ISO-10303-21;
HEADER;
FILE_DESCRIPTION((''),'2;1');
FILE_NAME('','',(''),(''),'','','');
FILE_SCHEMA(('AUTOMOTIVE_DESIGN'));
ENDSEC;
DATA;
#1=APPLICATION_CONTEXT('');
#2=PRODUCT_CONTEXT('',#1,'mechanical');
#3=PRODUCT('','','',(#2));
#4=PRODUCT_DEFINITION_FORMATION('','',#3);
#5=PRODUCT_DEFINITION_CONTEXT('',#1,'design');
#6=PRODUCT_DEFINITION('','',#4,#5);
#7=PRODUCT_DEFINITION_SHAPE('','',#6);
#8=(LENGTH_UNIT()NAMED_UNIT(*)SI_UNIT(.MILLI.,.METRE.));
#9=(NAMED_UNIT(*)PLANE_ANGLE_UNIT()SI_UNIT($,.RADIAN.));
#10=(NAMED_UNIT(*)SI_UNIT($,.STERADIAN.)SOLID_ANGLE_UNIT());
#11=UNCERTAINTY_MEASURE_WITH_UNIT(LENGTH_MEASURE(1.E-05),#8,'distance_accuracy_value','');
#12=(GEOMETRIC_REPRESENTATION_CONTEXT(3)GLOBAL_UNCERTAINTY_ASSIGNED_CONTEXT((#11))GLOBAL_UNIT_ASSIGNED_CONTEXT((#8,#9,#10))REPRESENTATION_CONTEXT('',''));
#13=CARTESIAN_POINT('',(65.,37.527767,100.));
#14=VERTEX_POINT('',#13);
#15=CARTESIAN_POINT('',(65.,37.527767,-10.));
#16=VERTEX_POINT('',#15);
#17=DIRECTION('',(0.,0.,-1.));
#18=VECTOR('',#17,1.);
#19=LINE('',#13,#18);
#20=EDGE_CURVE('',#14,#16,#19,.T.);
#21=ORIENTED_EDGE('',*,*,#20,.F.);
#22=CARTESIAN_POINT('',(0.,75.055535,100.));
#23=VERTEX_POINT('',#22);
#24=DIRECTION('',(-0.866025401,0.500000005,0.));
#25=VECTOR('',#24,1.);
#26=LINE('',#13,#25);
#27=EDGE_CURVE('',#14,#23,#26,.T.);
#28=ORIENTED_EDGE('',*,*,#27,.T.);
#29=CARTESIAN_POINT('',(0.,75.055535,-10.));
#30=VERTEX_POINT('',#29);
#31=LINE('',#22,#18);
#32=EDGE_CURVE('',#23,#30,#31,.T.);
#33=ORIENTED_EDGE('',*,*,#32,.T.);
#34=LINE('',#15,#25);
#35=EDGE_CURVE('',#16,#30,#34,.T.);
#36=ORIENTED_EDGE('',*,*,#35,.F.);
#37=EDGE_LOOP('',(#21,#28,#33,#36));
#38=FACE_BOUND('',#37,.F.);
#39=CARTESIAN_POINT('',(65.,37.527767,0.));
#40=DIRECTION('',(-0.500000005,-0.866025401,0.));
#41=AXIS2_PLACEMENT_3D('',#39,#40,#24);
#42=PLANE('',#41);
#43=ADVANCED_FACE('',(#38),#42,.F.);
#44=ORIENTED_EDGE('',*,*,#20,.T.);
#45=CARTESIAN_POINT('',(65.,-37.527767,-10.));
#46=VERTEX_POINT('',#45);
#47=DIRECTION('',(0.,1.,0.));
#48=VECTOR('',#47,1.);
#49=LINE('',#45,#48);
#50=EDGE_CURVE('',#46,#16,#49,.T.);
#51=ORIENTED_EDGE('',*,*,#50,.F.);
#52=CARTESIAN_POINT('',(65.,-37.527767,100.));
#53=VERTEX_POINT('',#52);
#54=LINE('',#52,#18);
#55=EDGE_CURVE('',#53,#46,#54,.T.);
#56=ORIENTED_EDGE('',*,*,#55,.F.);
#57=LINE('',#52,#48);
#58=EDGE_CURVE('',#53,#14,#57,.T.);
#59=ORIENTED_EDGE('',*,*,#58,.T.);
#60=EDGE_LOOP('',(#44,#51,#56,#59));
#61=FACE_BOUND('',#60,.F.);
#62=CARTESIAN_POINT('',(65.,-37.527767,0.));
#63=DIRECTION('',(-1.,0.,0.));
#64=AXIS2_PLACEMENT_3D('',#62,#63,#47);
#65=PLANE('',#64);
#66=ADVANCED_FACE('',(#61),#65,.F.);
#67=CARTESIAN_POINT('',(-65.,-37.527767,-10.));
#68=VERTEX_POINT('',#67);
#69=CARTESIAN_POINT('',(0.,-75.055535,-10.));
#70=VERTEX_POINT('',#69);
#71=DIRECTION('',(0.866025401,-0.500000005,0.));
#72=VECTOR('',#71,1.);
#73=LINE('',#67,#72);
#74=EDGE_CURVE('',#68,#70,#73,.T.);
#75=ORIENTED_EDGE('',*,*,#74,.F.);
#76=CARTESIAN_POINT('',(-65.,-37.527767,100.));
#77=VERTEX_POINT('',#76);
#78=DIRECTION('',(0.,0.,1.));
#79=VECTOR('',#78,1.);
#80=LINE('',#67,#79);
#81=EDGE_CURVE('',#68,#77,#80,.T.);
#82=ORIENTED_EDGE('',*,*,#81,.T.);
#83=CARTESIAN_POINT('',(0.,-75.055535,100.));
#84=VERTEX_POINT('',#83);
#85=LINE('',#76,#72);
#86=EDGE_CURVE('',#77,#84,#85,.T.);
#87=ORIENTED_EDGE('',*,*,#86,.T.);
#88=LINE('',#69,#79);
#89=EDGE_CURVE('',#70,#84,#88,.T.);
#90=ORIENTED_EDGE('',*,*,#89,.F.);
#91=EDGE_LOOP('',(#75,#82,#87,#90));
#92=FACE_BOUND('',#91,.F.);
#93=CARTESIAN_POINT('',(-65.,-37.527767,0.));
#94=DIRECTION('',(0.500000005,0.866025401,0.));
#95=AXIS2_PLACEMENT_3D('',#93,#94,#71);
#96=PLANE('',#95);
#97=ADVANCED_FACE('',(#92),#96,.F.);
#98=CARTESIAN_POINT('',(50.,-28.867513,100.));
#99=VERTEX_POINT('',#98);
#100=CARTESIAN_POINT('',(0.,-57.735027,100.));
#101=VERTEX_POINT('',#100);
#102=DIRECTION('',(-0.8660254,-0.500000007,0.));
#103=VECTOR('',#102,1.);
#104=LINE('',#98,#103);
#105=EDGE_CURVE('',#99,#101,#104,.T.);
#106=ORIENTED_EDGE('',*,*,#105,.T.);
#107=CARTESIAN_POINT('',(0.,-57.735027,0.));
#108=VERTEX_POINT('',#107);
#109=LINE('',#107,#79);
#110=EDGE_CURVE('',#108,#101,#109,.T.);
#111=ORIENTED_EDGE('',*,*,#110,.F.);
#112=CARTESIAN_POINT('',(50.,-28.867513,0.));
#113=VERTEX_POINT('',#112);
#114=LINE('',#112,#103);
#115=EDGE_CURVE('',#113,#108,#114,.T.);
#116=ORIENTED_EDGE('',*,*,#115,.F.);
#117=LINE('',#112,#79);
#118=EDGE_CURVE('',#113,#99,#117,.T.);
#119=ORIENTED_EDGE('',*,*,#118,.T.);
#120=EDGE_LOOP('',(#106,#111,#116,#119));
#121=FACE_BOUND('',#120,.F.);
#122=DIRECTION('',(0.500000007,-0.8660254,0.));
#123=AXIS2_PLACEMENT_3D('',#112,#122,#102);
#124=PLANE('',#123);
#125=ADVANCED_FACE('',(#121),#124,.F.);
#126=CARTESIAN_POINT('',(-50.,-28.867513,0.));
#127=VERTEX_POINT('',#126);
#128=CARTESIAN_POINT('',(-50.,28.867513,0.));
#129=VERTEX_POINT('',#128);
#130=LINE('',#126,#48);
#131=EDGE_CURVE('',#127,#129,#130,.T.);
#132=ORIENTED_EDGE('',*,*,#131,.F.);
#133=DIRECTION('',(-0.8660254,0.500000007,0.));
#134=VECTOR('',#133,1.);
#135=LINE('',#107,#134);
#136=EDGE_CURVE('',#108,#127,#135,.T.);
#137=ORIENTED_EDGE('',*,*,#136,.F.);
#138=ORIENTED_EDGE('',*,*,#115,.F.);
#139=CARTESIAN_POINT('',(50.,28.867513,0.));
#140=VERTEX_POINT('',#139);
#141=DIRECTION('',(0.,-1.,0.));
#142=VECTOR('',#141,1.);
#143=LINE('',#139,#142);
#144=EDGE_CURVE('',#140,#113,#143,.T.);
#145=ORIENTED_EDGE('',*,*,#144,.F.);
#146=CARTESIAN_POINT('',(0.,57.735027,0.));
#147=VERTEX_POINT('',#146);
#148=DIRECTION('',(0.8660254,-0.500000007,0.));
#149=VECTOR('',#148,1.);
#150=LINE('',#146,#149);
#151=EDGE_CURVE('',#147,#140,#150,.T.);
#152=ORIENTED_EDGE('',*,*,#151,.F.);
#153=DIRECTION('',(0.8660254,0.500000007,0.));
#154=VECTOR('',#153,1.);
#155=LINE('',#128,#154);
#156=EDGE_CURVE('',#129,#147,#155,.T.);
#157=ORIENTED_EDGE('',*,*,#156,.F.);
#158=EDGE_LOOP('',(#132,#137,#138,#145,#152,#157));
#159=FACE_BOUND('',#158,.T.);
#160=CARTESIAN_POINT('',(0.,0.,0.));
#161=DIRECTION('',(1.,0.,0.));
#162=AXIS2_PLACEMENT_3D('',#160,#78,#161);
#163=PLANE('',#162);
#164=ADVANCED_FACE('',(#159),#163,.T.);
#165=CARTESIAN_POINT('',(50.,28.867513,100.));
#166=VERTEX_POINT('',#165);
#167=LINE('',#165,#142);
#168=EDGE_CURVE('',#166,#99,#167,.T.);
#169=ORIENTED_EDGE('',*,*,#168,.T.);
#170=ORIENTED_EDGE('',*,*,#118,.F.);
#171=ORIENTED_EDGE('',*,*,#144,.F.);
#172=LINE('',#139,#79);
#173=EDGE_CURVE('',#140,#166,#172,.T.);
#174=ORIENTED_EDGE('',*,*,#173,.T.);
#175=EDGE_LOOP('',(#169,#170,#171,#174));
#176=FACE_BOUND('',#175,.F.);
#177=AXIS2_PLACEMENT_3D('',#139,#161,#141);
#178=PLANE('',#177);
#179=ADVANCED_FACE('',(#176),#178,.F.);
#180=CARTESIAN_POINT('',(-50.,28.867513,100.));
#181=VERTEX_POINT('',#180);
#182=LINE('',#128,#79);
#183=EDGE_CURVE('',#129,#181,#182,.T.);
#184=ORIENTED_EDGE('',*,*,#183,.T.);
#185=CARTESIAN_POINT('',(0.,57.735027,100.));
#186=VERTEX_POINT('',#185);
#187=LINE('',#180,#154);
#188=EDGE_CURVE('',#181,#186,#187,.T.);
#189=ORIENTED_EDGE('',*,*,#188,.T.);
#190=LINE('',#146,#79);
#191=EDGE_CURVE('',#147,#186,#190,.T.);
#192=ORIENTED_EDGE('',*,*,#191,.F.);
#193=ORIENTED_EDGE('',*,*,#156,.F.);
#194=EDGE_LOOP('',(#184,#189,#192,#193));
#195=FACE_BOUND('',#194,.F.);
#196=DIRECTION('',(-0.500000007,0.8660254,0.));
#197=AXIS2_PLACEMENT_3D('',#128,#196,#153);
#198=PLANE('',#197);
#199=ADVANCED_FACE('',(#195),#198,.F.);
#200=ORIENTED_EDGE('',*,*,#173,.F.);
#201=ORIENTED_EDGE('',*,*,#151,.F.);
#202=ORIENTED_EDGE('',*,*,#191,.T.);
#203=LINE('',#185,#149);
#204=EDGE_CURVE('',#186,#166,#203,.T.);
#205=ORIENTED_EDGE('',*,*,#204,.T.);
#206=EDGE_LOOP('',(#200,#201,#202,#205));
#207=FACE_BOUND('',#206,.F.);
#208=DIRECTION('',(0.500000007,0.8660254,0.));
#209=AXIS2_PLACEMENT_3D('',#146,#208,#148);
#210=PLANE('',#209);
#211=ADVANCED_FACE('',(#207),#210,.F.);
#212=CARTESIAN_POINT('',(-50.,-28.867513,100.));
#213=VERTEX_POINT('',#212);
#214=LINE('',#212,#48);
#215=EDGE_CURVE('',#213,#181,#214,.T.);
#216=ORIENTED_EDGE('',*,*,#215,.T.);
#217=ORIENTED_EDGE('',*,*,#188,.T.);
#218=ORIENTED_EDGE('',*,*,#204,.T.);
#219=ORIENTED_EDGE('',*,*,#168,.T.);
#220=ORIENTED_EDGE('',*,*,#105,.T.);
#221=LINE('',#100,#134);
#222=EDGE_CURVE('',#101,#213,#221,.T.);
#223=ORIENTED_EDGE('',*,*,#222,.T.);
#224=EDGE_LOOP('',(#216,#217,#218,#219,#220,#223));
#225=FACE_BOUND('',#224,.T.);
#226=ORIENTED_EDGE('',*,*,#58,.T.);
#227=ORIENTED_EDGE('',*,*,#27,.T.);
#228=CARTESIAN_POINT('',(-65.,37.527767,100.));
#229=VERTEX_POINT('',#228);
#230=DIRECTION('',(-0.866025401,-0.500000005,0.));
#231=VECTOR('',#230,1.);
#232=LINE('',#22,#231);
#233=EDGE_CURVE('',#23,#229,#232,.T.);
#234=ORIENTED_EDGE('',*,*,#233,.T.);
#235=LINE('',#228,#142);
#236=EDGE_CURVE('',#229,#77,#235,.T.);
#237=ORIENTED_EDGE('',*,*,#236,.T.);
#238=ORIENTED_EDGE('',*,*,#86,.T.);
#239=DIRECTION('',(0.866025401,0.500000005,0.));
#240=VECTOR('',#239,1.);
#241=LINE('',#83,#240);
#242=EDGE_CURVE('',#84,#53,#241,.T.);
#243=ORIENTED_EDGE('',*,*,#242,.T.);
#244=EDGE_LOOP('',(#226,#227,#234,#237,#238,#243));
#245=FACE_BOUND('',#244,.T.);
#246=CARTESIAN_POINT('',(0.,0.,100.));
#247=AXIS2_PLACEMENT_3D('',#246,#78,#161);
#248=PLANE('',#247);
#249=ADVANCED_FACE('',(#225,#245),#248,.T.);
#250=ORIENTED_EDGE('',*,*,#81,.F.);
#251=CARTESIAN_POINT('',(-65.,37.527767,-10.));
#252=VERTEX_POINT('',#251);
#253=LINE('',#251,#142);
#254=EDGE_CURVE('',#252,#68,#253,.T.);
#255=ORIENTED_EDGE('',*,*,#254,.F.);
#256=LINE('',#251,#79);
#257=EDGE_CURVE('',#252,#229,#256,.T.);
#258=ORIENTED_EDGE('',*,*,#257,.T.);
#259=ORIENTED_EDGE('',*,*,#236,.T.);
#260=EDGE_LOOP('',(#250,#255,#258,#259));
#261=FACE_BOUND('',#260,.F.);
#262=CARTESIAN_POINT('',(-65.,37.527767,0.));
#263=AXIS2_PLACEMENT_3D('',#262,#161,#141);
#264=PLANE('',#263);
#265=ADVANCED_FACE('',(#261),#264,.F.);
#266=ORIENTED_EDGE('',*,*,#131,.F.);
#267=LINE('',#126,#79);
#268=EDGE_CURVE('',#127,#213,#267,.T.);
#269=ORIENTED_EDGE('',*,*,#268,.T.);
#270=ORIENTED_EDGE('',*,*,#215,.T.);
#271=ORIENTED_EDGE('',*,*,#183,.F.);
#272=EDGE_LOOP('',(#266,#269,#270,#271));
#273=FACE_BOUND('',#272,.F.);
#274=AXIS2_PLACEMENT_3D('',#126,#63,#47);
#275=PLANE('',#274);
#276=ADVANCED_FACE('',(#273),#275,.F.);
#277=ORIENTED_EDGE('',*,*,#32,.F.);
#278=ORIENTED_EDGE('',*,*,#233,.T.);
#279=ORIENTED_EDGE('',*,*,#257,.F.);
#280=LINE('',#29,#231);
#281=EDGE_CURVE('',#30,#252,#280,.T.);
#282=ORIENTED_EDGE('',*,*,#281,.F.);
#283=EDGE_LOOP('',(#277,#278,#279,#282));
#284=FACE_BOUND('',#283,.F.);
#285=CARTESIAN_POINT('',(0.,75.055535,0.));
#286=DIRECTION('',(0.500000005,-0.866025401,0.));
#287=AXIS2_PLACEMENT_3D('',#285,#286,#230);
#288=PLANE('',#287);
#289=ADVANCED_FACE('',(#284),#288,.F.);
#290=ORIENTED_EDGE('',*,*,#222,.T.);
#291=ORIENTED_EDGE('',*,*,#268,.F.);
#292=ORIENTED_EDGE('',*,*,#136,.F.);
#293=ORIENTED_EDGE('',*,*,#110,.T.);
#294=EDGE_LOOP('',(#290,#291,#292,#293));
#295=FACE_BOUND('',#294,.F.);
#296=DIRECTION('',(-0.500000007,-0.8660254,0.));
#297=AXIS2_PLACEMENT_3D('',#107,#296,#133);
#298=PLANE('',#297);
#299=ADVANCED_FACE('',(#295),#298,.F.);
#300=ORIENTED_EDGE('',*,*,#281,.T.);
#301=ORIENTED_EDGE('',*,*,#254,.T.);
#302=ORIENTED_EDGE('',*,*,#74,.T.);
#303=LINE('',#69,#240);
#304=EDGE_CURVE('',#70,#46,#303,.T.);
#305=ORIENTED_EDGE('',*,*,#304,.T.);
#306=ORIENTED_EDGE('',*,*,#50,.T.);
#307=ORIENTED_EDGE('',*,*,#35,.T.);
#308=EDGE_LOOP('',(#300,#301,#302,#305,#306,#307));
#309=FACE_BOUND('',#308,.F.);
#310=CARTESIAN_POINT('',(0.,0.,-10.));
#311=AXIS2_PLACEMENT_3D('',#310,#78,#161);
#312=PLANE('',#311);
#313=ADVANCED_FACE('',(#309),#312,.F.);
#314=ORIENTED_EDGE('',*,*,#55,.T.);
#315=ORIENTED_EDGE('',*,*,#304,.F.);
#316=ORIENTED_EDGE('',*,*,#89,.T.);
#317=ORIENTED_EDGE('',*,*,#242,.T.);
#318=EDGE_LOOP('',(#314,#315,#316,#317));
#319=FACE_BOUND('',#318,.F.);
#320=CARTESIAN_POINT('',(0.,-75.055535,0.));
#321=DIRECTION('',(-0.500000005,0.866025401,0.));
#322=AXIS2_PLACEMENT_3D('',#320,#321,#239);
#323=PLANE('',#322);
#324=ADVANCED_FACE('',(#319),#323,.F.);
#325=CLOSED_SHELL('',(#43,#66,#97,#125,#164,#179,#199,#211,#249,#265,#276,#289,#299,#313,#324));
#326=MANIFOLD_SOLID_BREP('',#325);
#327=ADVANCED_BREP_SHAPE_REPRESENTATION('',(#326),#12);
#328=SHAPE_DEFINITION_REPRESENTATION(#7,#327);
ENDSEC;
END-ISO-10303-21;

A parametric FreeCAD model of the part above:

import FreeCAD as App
import Part
import Sketcher

V = App.Vector
Q = App.Units.Quantity

doc = App.newDocument("Part")
body = doc.addObject("PartDesign::Body", "Body")

# Sketch on XY plane
sketch1 = body.newObject("Sketcher::SketchObject", "Sketch")
sketch1.AttachmentSupport = (doc.getObject("XY_Plane"), [""])
sketch1.MapMode = "FlatFace"
sketch1.addGeometry(Part.LineSegment(V(0, 75.055535, 0), V(-65, 37.527767, 0)), False)
sketch1.addGeometry(Part.LineSegment(V(-65, 37.527767, 0), V(-65, -37.527767, 0)), False)
sketch1.addGeometry(Part.LineSegment(V(-65, -37.527767, 0), V(0, -75.055535, 0)), False)
sketch1.addGeometry(Part.LineSegment(V(0, -75.055535, 0), V(65, -37.527767, 0)), False)
sketch1.addGeometry(Part.LineSegment(V(65, -37.527767, 0), V(65, 37.527767, 0)), False)
sketch1.addGeometry(Part.LineSegment(V(65, 37.527767, 0), V(0, 75.055535, 0)), False)
sketch1.addConstraint(Sketcher.Constraint("Coincident", 0, 2, 1, 1))
sketch1.addConstraint(Sketcher.Constraint("Coincident", 1, 2, 2, 1))
sketch1.addConstraint(Sketcher.Constraint("Coincident", 2, 2, 3, 1))
sketch1.addConstraint(Sketcher.Constraint("Coincident", 3, 2, 4, 1))
sketch1.addConstraint(Sketcher.Constraint("Coincident", 4, 2, 5, 1))
sketch1.addConstraint(Sketcher.Constraint("Coincident", 5, 2, 0, 1))
sketch1.addConstraint(Sketcher.Constraint("Vertical", 1))
sketch1.addConstraint(Sketcher.Constraint("Vertical", 4))
sketch1.addConstraint(Sketcher.Constraint("Symmetric", 0, 2, 3, 2, -1, 1))
sketch1.addConstraint(Sketcher.Constraint("Symmetric", 2, 2, 5, 2, -1, 1))
sketch1.addConstraint(Sketcher.Constraint("PointOnObject", 2, 2, -2))
sketch1.addConstraint(Sketcher.Constraint("Parallel", 2, 5))
sketch1.addConstraint(Sketcher.Constraint("Horizontal", 1, 2, 3, 2))
sketch1.addConstraint(Sketcher.Constraint("Angle", 0, Q("-150 deg")))
sketch1.addConstraint(Sketcher.Constraint("DistanceX", 0, 2, -1, 1, 65.0))
sketch1.addConstraint(Sketcher.Constraint("DistanceY", 1, 2, 1, 1, 75.055534))
pad1 = body.newObject("PartDesign::Pad", "Pad")
pad1.Profile = sketch1
pad1.Length = 10
pad1.Reversed = True

# Sketch on XY plane
sketch2 = body.newObject("Sketcher::SketchObject", "Sketch001")
sketch2.AttachmentSupport = (doc.getObject("XY_Plane"), [""])
sketch2.MapMode = "FlatFace"
sketch2.addGeometry(Part.LineSegment(V(0, 75.055535, 0), V(-65, 37.527767, 0)), False)
sketch2.addGeometry(Part.LineSegment(V(-65, 37.527767, 0), V(-65, -37.527767, 0)), False)
sketch2.addGeometry(Part.LineSegment(V(-65, -37.527767, 0), V(0, -75.055535, 0)), False)
sketch2.addGeometry(Part.LineSegment(V(0, -75.055535, 0), V(65, -37.527767, 0)), False)
sketch2.addGeometry(Part.LineSegment(V(65, -37.527767, 0), V(65, 37.527767, 0)), False)
sketch2.addGeometry(Part.LineSegment(V(65, 37.527767, 0), V(0, 75.055535, 0)), False)
sketch2.addGeometry(Part.LineSegment(V(-50, 28.867513, 0), V(0, 57.735027, 0)), False)
sketch2.addGeometry(Part.LineSegment(V(0, 57.735027, 0), V(50, 28.867513, 0)), False)
sketch2.addGeometry(Part.LineSegment(V(50, 28.867513, 0), V(50, -28.867513, 0)), False)
sketch2.addGeometry(Part.LineSegment(V(50, -28.867513, 0), V(0, -57.735027, 0)), False)
sketch2.addGeometry(Part.LineSegment(V(0, -57.735027, 0), V(-50, -28.867513, 0)), False)
sketch2.addGeometry(Part.LineSegment(V(-50, -28.867513, 0), V(-50, 28.867513, 0)), False)
sketch2.addConstraint(Sketcher.Constraint("Coincident", 0, 2, 1, 1))
sketch2.addConstraint(Sketcher.Constraint("Coincident", 1, 2, 2, 1))
sketch2.addConstraint(Sketcher.Constraint("Coincident", 2, 2, 3, 1))
sketch2.addConstraint(Sketcher.Constraint("Coincident", 3, 2, 4, 1))
sketch2.addConstraint(Sketcher.Constraint("Coincident", 4, 2, 5, 1))
sketch2.addConstraint(Sketcher.Constraint("Coincident", 5, 2, 0, 1))
sketch2.addConstraint(Sketcher.Constraint("Coincident", 6, 2, 7, 1))
sketch2.addConstraint(Sketcher.Constraint("Coincident", 7, 2, 8, 1))
sketch2.addConstraint(Sketcher.Constraint("Coincident", 8, 2, 9, 1))
sketch2.addConstraint(Sketcher.Constraint("Coincident", 9, 2, 10, 1))
sketch2.addConstraint(Sketcher.Constraint("Coincident", 10, 2, 11, 1))
sketch2.addConstraint(Sketcher.Constraint("Coincident", 11, 2, 6, 1))
sketch2.addConstraint(Sketcher.Constraint("Vertical", 1))
sketch2.addConstraint(Sketcher.Constraint("Vertical", 4))
sketch2.addConstraint(Sketcher.Constraint("Vertical", 8))
sketch2.addConstraint(Sketcher.Constraint("Vertical", 11))
sketch2.addConstraint(Sketcher.Constraint("Symmetric", 0, 2, 3, 2, -1, 1))
sketch2.addConstraint(Sketcher.Constraint("Symmetric", 2, 2, 5, 2, -1, 1))
sketch2.addConstraint(Sketcher.Constraint("Symmetric", 6, 2, 9, 2, -1, 1))
sketch2.addConstraint(Sketcher.Constraint("Symmetric", 7, 2, 10, 2, -1, 1))
sketch2.addConstraint(Sketcher.Constraint("PointOnObject", 2, 2, -2))
sketch2.addConstraint(Sketcher.Constraint("PointOnObject", 6, 2, -2))
sketch2.addConstraint(Sketcher.Constraint("Parallel", 2, 5))
sketch2.addConstraint(Sketcher.Constraint("Parallel", 3, 6))
sketch2.addConstraint(Sketcher.Constraint("Parallel", 5, 7))
sketch2.addConstraint(Sketcher.Constraint("Parallel", 6, 9))
sketch2.addConstraint(Sketcher.Constraint("Horizontal", 1, 2, 3, 2))
sketch2.addConstraint(Sketcher.Constraint("Angle", 0, Q("-150 deg")))
sketch2.addConstraint(Sketcher.Constraint("DistanceX", 0, 2, -1, 1, 65.0))
sketch2.addConstraint(Sketcher.Constraint("DistanceX", -1, 1, 7, 2, 50.0))
sketch2.addConstraint(Sketcher.Constraint("DistanceY", 1, 2, 1, 1, 75.055534))
sketch2.addConstraint(Sketcher.Constraint("DistanceY", 8, 2, 8, 1, 57.735026))
pad2 = body.newObject("PartDesign::Pad", "Pad001")
pad2.Profile = sketch2
pad2.Length = 100

doc.recompute()
